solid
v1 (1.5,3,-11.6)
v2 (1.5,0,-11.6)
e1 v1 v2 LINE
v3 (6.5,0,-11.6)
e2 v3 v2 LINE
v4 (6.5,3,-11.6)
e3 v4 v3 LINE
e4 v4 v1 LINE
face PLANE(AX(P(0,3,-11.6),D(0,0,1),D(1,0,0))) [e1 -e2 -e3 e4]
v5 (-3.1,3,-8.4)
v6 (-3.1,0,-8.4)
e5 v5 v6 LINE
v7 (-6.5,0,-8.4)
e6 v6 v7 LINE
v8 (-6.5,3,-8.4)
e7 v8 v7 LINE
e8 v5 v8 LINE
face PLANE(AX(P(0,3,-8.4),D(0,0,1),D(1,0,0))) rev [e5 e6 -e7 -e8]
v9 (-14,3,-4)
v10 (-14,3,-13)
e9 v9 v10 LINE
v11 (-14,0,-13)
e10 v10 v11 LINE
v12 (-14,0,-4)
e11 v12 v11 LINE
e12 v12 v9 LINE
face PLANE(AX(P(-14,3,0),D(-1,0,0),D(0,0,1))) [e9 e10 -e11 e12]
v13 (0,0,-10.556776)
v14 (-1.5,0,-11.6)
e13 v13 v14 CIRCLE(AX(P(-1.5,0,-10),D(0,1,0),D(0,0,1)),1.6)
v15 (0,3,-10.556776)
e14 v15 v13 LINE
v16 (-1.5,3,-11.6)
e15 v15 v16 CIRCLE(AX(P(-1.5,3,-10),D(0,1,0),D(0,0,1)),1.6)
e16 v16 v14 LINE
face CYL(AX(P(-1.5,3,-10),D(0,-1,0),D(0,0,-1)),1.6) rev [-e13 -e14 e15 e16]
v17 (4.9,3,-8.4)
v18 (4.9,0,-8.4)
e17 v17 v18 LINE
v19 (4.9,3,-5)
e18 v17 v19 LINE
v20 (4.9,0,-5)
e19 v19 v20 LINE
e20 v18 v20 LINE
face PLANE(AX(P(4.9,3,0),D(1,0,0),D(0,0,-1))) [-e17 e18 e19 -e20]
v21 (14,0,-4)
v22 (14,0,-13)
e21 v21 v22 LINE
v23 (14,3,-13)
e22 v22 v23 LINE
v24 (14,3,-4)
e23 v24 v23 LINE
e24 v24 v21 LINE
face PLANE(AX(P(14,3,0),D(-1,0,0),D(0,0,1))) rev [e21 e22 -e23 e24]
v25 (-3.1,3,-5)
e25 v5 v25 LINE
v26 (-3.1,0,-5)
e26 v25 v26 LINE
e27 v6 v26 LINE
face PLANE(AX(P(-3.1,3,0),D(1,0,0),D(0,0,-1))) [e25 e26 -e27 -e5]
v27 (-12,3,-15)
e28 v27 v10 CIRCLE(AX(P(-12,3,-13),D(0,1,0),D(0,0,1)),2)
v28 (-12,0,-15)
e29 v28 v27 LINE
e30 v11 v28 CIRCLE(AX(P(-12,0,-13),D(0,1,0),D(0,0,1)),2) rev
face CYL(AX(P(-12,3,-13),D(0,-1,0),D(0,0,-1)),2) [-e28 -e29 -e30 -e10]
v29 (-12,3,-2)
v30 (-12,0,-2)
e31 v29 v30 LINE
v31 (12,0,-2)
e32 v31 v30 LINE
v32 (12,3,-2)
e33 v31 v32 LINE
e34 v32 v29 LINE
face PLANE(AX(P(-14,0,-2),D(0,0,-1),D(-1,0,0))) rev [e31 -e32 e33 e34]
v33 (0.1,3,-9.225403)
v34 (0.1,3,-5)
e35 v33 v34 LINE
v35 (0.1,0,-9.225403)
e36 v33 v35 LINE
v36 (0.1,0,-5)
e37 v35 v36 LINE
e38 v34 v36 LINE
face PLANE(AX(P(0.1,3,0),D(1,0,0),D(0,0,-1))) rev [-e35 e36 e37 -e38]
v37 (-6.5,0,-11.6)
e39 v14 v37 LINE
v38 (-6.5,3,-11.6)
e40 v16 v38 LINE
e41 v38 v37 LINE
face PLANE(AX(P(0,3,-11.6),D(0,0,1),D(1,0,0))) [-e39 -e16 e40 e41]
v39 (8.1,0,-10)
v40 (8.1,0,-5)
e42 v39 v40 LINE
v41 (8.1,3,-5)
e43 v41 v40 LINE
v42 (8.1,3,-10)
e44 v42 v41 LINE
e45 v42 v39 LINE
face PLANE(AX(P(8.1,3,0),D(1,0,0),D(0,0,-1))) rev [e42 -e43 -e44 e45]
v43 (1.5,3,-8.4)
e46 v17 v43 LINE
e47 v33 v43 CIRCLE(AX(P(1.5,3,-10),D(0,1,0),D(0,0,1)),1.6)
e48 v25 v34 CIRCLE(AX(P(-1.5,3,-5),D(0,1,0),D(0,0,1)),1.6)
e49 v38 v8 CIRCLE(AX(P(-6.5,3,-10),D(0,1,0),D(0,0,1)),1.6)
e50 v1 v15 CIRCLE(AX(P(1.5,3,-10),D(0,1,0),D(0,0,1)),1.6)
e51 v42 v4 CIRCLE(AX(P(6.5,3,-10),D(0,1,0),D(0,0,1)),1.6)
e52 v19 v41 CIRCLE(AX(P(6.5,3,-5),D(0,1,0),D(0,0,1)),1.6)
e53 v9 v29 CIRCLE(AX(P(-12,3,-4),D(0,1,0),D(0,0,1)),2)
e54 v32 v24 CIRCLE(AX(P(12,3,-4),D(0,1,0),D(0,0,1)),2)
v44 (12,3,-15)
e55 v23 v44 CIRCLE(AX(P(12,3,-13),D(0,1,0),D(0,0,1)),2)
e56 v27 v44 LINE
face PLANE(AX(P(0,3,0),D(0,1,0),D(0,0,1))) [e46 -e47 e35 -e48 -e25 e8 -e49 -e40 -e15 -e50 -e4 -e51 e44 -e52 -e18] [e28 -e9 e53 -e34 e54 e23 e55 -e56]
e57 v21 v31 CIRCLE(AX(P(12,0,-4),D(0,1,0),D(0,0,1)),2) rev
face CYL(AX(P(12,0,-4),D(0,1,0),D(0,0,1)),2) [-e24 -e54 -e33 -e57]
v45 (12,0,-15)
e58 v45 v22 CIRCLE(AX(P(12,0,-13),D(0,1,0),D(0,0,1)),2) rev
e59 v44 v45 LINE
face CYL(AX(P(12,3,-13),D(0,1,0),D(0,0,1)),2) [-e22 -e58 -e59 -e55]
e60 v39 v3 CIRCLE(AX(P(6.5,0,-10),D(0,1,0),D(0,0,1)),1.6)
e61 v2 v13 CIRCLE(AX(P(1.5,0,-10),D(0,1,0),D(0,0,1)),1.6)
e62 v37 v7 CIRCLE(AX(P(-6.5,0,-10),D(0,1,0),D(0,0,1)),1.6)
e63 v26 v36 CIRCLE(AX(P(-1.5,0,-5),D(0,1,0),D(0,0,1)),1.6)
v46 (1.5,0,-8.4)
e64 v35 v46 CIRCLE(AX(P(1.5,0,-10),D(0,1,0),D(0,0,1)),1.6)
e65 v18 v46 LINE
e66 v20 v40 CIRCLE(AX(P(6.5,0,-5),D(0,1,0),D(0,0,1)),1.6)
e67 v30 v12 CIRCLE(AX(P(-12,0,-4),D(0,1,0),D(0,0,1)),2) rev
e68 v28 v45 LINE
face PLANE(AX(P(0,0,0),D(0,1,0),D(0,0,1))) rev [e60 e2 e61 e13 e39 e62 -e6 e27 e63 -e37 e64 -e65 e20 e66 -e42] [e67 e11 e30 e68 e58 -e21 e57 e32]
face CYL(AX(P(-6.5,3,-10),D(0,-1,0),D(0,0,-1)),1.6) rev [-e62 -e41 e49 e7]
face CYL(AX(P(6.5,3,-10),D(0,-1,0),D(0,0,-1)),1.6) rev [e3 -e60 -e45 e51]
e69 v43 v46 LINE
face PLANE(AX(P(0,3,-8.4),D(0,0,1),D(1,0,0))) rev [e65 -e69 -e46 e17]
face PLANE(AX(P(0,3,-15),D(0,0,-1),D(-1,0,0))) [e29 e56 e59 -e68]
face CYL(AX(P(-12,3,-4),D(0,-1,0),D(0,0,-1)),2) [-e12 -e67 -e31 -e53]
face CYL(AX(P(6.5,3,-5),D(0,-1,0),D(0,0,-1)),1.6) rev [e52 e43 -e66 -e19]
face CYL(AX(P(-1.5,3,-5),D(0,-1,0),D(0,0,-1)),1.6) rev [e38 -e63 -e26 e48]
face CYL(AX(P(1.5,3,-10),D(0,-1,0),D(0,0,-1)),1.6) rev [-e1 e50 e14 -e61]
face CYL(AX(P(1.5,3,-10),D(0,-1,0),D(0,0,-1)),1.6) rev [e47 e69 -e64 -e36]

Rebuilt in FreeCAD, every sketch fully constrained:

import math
import FreeCAD as App
import Part
import Sketcher
Q = App.Units.Quantity


def edges_at(feature, points):
    """Names of the edges that pass closest to the given points."""
    edges = feature.Shape.Edges
    near = lambda p: min(range(len(edges)), key=lambda i: edges[i].distToShape(Part.Vertex(*p))[0])
    return sorted({f"Edge{near(p) + 1}" for p in points})


def add_polygon(sketch, points):
    """Adds a closed chain of lines whose ends are joined by coincident constraints."""
    first, n = sketch.GeometryCount, len(points)
    for a, b in zip(points, points[1:] + points[:1]):
        sketch.addGeometry(Part.LineSegment(App.Vector(*a, 0), App.Vector(*b, 0)), False)
    for i in range(n):
        sketch.addConstraint(Sketcher.Constraint("Coincident", first + i, 2, first + (i + 1) % n, 1))

doc = App.newDocument("Part")
params = doc.addObject("Spreadsheet::Sheet", "Params")
for row, (alias, value) in enumerate([
    ("sketch1_radius", "1.6 mm"),
    ("sketch1_width", "28 mm"),
    ("sketch1_width2", "5 mm"),
    ("sketch1_height", "30 mm"),
    ("pad1_length", "3 mm"),
    ("sketch2_diameter", "3.2 mm"),
    ("sketch2_height", "15 mm"),
    ("sketch2_width", "5.5 mm"),
    ("sketch3_width", "28 mm"),
    ("sketch3_height", "17 mm"),
    ("fillet_radius", "2 mm"),
], start=1):
    params.set(f"A{row}", alias)
    params.set(f"B{row}", "=" + value)
    params.setAlias(f"B{row}", alias)

body = doc.addObject("PartDesign::Body", "Body")

# Sketch on XZ plane
sketch1 = body.newObject("Sketcher::SketchObject", "Sketch")
sketch1.AttachmentSupport = (doc.getObject("XZ_Plane"), [""])
sketch1.MapMode = "FlatFace"
add_polygon(sketch1, [(-14, -15), (-14, 15), (14, 15), (14, -15)])  # lines 0-3
sketch1.addGeometry(Part.LineSegment(App.Vector(4.9, -8.4, 0), App.Vector(1.5, -8.4, 0)), False)  # 4
sketch1.addGeometry(Part.ArcOfCircle(Part.Circle(App.Vector(1.5, -10, 0), App.Vector(0, 0, 1), 1.6), math.radians(90), math.radians(151)), False)  # 5
sketch1.addGeometry(Part.LineSegment(App.Vector(0.1, -9.2, 0), App.Vector(0.1, -5, 0)), False)  # 6
sketch1.addGeometry(Part.ArcOfCircle(Part.Circle(App.Vector(-1.5, -5, 0), App.Vector(0, 0, 1), 1.6), math.radians(0), math.radians(180)), False)  # 7
sketch1.addGeometry(Part.LineSegment(App.Vector(-3.1, -5, 0), App.Vector(-3.1, -8.4, 0)), False)  # 8
sketch1.addGeometry(Part.LineSegment(App.Vector(-3.1, -8.4, 0), App.Vector(-6.5, -8.4, 0)), False)  # 9
sketch1.addGeometry(Part.ArcOfCircle(Part.Circle(App.Vector(-6.5, -10, 0), App.Vector(0, 0, 1), 1.6), math.radians(90), math.radians(270)), False)  # 10
sketch1.addGeometry(Part.LineSegment(App.Vector(-6.5, -11.6, 0), App.Vector(-1.5, -11.6, 0)), False)  # 11
sketch1.addGeometry(Part.ArcOfCircle(Part.Circle(App.Vector(-1.5, -10, 0), App.Vector(0, 0, 1), 1.6), math.radians(-90), math.radians(-20)), False)  # 12
sketch1.addGeometry(Part.ArcOfCircle(Part.Circle(App.Vector(1.5, -10, 0), App.Vector(0, 0, 1), 1.6), math.radians(-160), math.radians(-90)), False)  # 13
sketch1.addGeometry(Part.LineSegment(App.Vector(1.5, -11.6, 0), App.Vector(6.5, -11.6, 0)), False)  # 14
sketch1.addGeometry(Part.ArcOfCircle(Part.Circle(App.Vector(6.5, -10, 0), App.Vector(0, 0, 1), 1.6), math.radians(-90), math.radians(0)), False)  # 15
sketch1.addGeometry(Part.LineSegment(App.Vector(8.1, -10, 0), App.Vector(8.1, -5, 0)), False)  # 16
sketch1.addGeometry(Part.ArcOfCircle(Part.Circle(App.Vector(6.5, -5, 0), App.Vector(0, 0, 1), 1.6), math.radians(0), math.radians(180)), False)  # 17
sketch1.addGeometry(Part.LineSegment(App.Vector(4.9, -5, 0), App.Vector(4.9, -8.4, 0)), False)  # 18
sketch1.addConstraint([
    Sketcher.Constraint("Tangent", 4, 2, 5, 1),
    Sketcher.Constraint("Coincident", 5, 2, 6, 1),
    Sketcher.Constraint("Tangent", 6, 2, 7, 1),
    Sketcher.Constraint("Tangent", 7, 2, 8, 1),
    Sketcher.Constraint("Coincident", 8, 2, 9, 1),
    Sketcher.Constraint("Tangent", 9, 2, 10, 1),
    Sketcher.Constraint("Tangent", 10, 2, 11, 1),
    Sketcher.Constraint("Tangent", 11, 2, 12, 1),
    Sketcher.Constraint("Coincident", 12, 2, 13, 1),
    Sketcher.Constraint("Tangent", 13, 2, 14, 1),
    Sketcher.Constraint("Tangent", 14, 2, 15, 1),
    Sketcher.Constraint("Tangent", 15, 2, 16, 1),
    Sketcher.Constraint("Tangent", 16, 2, 17, 1),
    Sketcher.Constraint("Tangent", 17, 2, 18, 1),
    Sketcher.Constraint("Coincident", 18, 2, 4, 1),
    Sketcher.Constraint("Vertical", 0),
    Sketcher.Constraint("Horizontal", 1),
    Sketcher.Constraint("Vertical", 2),
    Sketcher.Constraint("Horizontal", 3),
    Sketcher.Constraint("Horizontal", 4),
    Sketcher.Constraint("Vertical", 6),
    Sketcher.Constraint("Vertical", 8),
    Sketcher.Constraint("Horizontal", 9),
    Sketcher.Constraint("Horizontal", 11),
    Sketcher.Constraint("Horizontal", 14),
    Sketcher.Constraint("Vertical", 16),
    Sketcher.Constraint("Vertical", 18),
    Sketcher.Constraint("Coincident", 13, 3, 5, 3),
    Sketcher.Constraint("Equal", 5, 7),
    Sketcher.Constraint("Equal", 7, 10),
    Sketcher.Constraint("Equal", 10, 12),
    Sketcher.Constraint("Equal", 12, 13),
    Sketcher.Constraint("Equal", 13, 15),
    Sketcher.Constraint("Equal", 15, 17),
    Sketcher.Constraint("Symmetric", 0, 2, 2, 2, -1, 1),
    Sketcher.Constraint("Symmetric", 5, 3, 12, 3, -2),
    Sketcher.Constraint("Horizontal", 7, 3, 17, 3),
    Sketcher.Constraint("Vertical", 7, 3, 12, 3),
    Sketcher.Constraint("Equal", 4, 9),
    Sketcher.Constraint("Equal", 9, 8),
    Sketcher.Constraint("Radius", 5, Q("1.6 mm")),
    Sketcher.Constraint("DistanceX", 1, 1, 1, 2, Q("28 mm")),
    Sketcher.Constraint("DistanceX", 11, 1, 11, 2, Q("5 mm")),
    Sketcher.Constraint("DistanceY", 0, 1, 0, 2, Q("30 mm")),
    Sketcher.Constraint("DistanceY", 5, 3, -1, 1, Q("10 mm")),
    Sketcher.Constraint("DistanceX", 7, 3, 5, 3, Q("3 mm")),
])
sketch1.setExpression("Constraints[44]", "Params.sketch1_radius")
sketch1.setExpression("Constraints[45]", "Params.sketch1_width")
sketch1.setExpression("Constraints[46]", "Params.sketch1_width2")
sketch1.setExpression("Constraints[47]", "Params.sketch1_height")
pad1 = body.newObject("PartDesign::Pad", "Pad")
pad1.Profile = sketch1
pad1.setExpression("Length", "Params.pad1_length")
pad1.Reversed = True

# Sketch on XZ plane
sketch2 = body.newObject("Sketcher::SketchObject", "Sketch001")
sketch2.AttachmentSupport = (doc.getObject("XZ_Plane"), [""])
sketch2.MapMode = "FlatFace"
sketch2.AttachmentOffset = App.Placement(App.Vector(0, 0, -3), App.Rotation())
sketch2.addGeometry(Part.Circle(App.Vector(-5.2, 10, 0), App.Vector(0, 0, 1), 1.6), False)  # 0
sketch2.addGeometry(Part.Circle(App.Vector(5.2, 10, 0), App.Vector(0, 0, 1), 1.6), False)  # 1
add_polygon(sketch2, [(14, 0), (8.5, 15), (14, 15)])  # lines 2-4
add_polygon(sketch2, [(-14, 15), (-8.5, 15), (-14, 0)])  # lines 5-7
sketch2.addConstraint([
    Sketcher.Constraint("Horizontal", 3),
    Sketcher.Constraint("Vertical", 4),
    Sketcher.Constraint("Horizontal", 5),
    Sketcher.Constraint("Vertical", 7),
    Sketcher.Constraint("Equal", 0, 1),
    Sketcher.Constraint("Symmetric", 4, 2, 6, 2, -1, 1),
    Sketcher.Constraint("Symmetric", 0, 3, 1, 3, -2),
    Sketcher.Constraint("Symmetric", 2, 2, 5, 2, -2),
    Sketcher.Constraint("PointOnObject", 4, 2, -1),
    Sketcher.Constraint("Diameter", 0, Q("3.2 mm")),
    Sketcher.Constraint("DistanceY", 4, 2, 4, 1, Q("15 mm")),
    Sketcher.Constraint("DistanceX", 3, 1, 3, 2, Q("5.5 mm")),
    Sketcher.Constraint("DistanceY", -1, 1, 0, 3, Q("10 mm")),
    Sketcher.Constraint("DistanceX", -1, 1, 3, 2, Q("14 mm")),
    Sketcher.Constraint("DistanceX", 0, 3, 1, 3, Q("10.5 mm")),
])
sketch2.setExpression("Constraints[15]", "Params.sketch2_diameter")
sketch2.setExpression("Constraints[16]", "Params.sketch2_height")
sketch2.setExpression("Constraints[17]", "Params.sketch2_width")
pocket1 = body.newObject("PartDesign::Pocket", "Pocket")
pocket1.Profile = sketch2
pocket1.Type = "ThroughAll"
pocket1.Reversed = True

# Sketch on XZ plane
sketch3 = body.newObject("Sketcher::SketchObject", "Sketch002")
sketch3.AttachmentSupport = (doc.getObject("XZ_Plane"), [""])
sketch3.MapMode = "FlatFace"
sketch3.AttachmentOffset = App.Placement(App.Vector(0, 0, -3), App.Rotation())
add_polygon(sketch3, [(-14, -2), (-14, 15), (14, 15), (14, -2)])  # lines 0-3
sketch3.addConstraint([
    Sketcher.Constraint("Vertical", 0),
    Sketcher.Constraint("Horizontal", 1),
    Sketcher.Constraint("Vertical", 2),
    Sketcher.Constraint("Horizontal", 3),
    Sketcher.Constraint("DistanceX", 1, 1, 1, 2, Q("28 mm")),
    Sketcher.Constraint("DistanceY", 0, 1, 0, 2, Q("17 mm")),
    Sketcher.Constraint("DistanceX", 0, 2, -1, 1, Q("14 mm")),
    Sketcher.Constraint("DistanceY", -1, 1, 0, 2, Q("15 mm")),
])
sketch3.setExpression("Constraints[8]", "Params.sketch3_width")
sketch3.setExpression("Constraints[9]", "Params.sketch3_height")
pocket2 = body.newObject("PartDesign::Pocket", "Pocket001")
pocket2.Profile = sketch3
pocket2.Type = "ThroughAll"
pocket2.Reversed = True
doc.recompute()

fillet = body.newObject("PartDesign::Fillet", "Fillet")
fillet.Base = (pocket2, edges_at(pocket2, [
    (-14, 1.5, -15),
    (14, 1.5, -15),
    (14, 1.5, -2),
    (-14, 1.5, -2),
]))
fillet.setExpression("Radius", "Params.fillet_radius")

doc.recompute()
